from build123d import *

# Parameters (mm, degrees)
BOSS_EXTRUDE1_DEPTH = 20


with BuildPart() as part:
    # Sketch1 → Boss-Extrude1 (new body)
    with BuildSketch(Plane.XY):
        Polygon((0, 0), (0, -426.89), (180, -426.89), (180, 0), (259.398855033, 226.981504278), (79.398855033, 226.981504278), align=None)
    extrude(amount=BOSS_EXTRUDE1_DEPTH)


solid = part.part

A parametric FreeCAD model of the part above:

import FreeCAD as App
import Part
import Sketcher

V = App.Vector
Q = App.Units.Quantity


def add_polygon(sketch, points):
    """Adds a closed chain of lines whose ends are joined by coincident constraints."""
    first, n = sketch.GeometryCount, len(points)
    for a, b in zip(points, points[1:] + points[:1]):
        sketch.addGeometry(Part.LineSegment(App.Vector(*a, 0), App.Vector(*b, 0)), False)
    for i in range(n):
        sketch.addConstraint(Sketcher.Constraint("Coincident", first + i, 2, first + (i + 1) % n, 1))

doc = App.newDocument("Part")
body = doc.addObject("PartDesign::Body", "Body")

# Sketch on XY plane
sketch1 = body.newObject("Sketcher::SketchObject", "Sketch")
sketch1.AttachmentSupport = (doc.getObject("XY_Plane"), [""])
sketch1.MapMode = "FlatFace"
add_polygon(sketch1, [(0, 0), (0, -427), (180, -427), (180, 0), (259, 227), (79, 227)])  # lines 0-5
sketch1.addConstraint(Sketcher.Constraint("Vertical", 0))
sketch1.addConstraint(Sketcher.Constraint("Horizontal", 1))
sketch1.addConstraint(Sketcher.Constraint("Vertical", 2))
sketch1.addConstraint(Sketcher.Constraint("Horizontal", 4))
sketch1.addConstraint(Sketcher.Constraint("Coincident", 5, 2, -1, 1))
sketch1.addConstraint(Sketcher.Constraint("PointOnObject", 2, 2, -1))
sketch1.addConstraint(Sketcher.Constraint("Parallel", 3, 5))
sketch1.addConstraint(Sketcher.Constraint("DistanceX", 1, 1, 1, 2, 180.0))
sketch1.addConstraint(Sketcher.Constraint("DistanceY", 0, 2, 0, 1, 426.89))
sketch1.addConstraint(Sketcher.Constraint("Angle", 3, Q("70.72 deg")))
sketch1.addConstraint(Sketcher.Constraint("Distance", 3, 240.467839))
pad1 = body.newObject("PartDesign::Pad", "Pad")
pad1.Profile = sketch1
pad1.Length = 20

doc.recompute()
